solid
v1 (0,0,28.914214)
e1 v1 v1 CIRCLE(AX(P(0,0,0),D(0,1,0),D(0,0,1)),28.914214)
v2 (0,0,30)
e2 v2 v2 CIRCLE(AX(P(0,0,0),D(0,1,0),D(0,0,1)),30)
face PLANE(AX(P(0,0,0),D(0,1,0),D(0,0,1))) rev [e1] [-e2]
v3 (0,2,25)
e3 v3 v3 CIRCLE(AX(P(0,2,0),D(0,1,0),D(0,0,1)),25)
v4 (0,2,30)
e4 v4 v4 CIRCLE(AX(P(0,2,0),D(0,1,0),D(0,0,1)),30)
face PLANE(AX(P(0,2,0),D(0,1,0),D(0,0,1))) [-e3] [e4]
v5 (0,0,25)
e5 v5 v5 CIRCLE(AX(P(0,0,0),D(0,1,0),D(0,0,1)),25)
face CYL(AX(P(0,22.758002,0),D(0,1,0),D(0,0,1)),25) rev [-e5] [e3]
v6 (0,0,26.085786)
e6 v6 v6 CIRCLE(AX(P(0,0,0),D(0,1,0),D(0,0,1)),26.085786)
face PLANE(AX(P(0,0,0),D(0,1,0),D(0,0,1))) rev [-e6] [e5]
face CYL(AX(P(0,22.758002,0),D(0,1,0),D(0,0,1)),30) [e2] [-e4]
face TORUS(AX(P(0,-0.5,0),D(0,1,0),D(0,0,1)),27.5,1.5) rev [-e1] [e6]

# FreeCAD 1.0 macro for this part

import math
import FreeCAD as App
import Part
import Sketcher
Q = App.Units.Quantity

doc = App.newDocument("Part")
body = doc.addObject("PartDesign::Body", "Body")

sketch1 = body.newObject("Sketcher::SketchObject", "Sketch")
sketch1.AttachmentSupport = (doc.getObject("XY_Plane"), [""])
sketch1.MapMode = "FlatFace"
sketch1.addGeometry([
    Part.LineSegment(App.Vector(25, 2, 0), App.Vector(25, 0, 0)),
    Part.LineSegment(App.Vector(25, 0, 0), App.Vector(26.085786, 0, 0)),
    Part.ArcOfCircle(Part.Circle(App.Vector(27.5, -0.5, 0), App.Vector(0, 0, 1), 1.5), math.radians(19.471221), math.radians(160.528779)),
    Part.LineSegment(App.Vector(28.914214, 0, 0), App.Vector(30, 0, 0)),
    Part.LineSegment(App.Vector(30, 0, 0), App.Vector(30, 2, 0)),
    Part.LineSegment(App.Vector(30, 2, 0), App.Vector(25, 2, 0)),
], False)
sketch1.addConstraint([
    Sketcher.Constraint("Coincident", 0, 2, 1, 1),
    Sketcher.Constraint("Coincident", 1, 2, 2, 2),
    Sketcher.Constraint("Coincident", 2, 1, 3, 1),
    Sketcher.Constraint("Coincident", 3, 2, 4, 1),
    Sketcher.Constraint("Coincident", 4, 2, 5, 1),
    Sketcher.Constraint("Coincident", 5, 2, 0, 1),
    Sketcher.Constraint("Vertical", 0),
    Sketcher.Constraint("Horizontal", 1),
    Sketcher.Constraint("Horizontal", 3),
    Sketcher.Constraint("Vertical", 4),
    Sketcher.Constraint("Horizontal", 5),
    Sketcher.Constraint("PointOnObject", 0, 2, -1),
    Sketcher.Constraint("PointOnObject", 2, 1, -1),
    Sketcher.Constraint("Equal", 1, 3),
    Sketcher.Constraint("Radius", 2, Q("1.5 mm")),
    Sketcher.Constraint("DistanceX", 5, 2, 5, 1, Q("5 mm")),
    Sketcher.Constraint("DistanceY", 0, 2, 0, 1, Q("2 mm")),
    Sketcher.Constraint("DistanceX", -1, 1, 0, 2, Q("25 mm")),
    Sketcher.Constraint("DistanceY", 2, 3, -1, 1, Q("0.5 mm")),
])
revolution = body.newObject("PartDesign::Revolution", "Revolution")
revolution.Profile = sketch1
revolution.ReferenceAxis = (sketch1, ["V_Axis"])
revolution.Angle = 360

doc.recompute()
